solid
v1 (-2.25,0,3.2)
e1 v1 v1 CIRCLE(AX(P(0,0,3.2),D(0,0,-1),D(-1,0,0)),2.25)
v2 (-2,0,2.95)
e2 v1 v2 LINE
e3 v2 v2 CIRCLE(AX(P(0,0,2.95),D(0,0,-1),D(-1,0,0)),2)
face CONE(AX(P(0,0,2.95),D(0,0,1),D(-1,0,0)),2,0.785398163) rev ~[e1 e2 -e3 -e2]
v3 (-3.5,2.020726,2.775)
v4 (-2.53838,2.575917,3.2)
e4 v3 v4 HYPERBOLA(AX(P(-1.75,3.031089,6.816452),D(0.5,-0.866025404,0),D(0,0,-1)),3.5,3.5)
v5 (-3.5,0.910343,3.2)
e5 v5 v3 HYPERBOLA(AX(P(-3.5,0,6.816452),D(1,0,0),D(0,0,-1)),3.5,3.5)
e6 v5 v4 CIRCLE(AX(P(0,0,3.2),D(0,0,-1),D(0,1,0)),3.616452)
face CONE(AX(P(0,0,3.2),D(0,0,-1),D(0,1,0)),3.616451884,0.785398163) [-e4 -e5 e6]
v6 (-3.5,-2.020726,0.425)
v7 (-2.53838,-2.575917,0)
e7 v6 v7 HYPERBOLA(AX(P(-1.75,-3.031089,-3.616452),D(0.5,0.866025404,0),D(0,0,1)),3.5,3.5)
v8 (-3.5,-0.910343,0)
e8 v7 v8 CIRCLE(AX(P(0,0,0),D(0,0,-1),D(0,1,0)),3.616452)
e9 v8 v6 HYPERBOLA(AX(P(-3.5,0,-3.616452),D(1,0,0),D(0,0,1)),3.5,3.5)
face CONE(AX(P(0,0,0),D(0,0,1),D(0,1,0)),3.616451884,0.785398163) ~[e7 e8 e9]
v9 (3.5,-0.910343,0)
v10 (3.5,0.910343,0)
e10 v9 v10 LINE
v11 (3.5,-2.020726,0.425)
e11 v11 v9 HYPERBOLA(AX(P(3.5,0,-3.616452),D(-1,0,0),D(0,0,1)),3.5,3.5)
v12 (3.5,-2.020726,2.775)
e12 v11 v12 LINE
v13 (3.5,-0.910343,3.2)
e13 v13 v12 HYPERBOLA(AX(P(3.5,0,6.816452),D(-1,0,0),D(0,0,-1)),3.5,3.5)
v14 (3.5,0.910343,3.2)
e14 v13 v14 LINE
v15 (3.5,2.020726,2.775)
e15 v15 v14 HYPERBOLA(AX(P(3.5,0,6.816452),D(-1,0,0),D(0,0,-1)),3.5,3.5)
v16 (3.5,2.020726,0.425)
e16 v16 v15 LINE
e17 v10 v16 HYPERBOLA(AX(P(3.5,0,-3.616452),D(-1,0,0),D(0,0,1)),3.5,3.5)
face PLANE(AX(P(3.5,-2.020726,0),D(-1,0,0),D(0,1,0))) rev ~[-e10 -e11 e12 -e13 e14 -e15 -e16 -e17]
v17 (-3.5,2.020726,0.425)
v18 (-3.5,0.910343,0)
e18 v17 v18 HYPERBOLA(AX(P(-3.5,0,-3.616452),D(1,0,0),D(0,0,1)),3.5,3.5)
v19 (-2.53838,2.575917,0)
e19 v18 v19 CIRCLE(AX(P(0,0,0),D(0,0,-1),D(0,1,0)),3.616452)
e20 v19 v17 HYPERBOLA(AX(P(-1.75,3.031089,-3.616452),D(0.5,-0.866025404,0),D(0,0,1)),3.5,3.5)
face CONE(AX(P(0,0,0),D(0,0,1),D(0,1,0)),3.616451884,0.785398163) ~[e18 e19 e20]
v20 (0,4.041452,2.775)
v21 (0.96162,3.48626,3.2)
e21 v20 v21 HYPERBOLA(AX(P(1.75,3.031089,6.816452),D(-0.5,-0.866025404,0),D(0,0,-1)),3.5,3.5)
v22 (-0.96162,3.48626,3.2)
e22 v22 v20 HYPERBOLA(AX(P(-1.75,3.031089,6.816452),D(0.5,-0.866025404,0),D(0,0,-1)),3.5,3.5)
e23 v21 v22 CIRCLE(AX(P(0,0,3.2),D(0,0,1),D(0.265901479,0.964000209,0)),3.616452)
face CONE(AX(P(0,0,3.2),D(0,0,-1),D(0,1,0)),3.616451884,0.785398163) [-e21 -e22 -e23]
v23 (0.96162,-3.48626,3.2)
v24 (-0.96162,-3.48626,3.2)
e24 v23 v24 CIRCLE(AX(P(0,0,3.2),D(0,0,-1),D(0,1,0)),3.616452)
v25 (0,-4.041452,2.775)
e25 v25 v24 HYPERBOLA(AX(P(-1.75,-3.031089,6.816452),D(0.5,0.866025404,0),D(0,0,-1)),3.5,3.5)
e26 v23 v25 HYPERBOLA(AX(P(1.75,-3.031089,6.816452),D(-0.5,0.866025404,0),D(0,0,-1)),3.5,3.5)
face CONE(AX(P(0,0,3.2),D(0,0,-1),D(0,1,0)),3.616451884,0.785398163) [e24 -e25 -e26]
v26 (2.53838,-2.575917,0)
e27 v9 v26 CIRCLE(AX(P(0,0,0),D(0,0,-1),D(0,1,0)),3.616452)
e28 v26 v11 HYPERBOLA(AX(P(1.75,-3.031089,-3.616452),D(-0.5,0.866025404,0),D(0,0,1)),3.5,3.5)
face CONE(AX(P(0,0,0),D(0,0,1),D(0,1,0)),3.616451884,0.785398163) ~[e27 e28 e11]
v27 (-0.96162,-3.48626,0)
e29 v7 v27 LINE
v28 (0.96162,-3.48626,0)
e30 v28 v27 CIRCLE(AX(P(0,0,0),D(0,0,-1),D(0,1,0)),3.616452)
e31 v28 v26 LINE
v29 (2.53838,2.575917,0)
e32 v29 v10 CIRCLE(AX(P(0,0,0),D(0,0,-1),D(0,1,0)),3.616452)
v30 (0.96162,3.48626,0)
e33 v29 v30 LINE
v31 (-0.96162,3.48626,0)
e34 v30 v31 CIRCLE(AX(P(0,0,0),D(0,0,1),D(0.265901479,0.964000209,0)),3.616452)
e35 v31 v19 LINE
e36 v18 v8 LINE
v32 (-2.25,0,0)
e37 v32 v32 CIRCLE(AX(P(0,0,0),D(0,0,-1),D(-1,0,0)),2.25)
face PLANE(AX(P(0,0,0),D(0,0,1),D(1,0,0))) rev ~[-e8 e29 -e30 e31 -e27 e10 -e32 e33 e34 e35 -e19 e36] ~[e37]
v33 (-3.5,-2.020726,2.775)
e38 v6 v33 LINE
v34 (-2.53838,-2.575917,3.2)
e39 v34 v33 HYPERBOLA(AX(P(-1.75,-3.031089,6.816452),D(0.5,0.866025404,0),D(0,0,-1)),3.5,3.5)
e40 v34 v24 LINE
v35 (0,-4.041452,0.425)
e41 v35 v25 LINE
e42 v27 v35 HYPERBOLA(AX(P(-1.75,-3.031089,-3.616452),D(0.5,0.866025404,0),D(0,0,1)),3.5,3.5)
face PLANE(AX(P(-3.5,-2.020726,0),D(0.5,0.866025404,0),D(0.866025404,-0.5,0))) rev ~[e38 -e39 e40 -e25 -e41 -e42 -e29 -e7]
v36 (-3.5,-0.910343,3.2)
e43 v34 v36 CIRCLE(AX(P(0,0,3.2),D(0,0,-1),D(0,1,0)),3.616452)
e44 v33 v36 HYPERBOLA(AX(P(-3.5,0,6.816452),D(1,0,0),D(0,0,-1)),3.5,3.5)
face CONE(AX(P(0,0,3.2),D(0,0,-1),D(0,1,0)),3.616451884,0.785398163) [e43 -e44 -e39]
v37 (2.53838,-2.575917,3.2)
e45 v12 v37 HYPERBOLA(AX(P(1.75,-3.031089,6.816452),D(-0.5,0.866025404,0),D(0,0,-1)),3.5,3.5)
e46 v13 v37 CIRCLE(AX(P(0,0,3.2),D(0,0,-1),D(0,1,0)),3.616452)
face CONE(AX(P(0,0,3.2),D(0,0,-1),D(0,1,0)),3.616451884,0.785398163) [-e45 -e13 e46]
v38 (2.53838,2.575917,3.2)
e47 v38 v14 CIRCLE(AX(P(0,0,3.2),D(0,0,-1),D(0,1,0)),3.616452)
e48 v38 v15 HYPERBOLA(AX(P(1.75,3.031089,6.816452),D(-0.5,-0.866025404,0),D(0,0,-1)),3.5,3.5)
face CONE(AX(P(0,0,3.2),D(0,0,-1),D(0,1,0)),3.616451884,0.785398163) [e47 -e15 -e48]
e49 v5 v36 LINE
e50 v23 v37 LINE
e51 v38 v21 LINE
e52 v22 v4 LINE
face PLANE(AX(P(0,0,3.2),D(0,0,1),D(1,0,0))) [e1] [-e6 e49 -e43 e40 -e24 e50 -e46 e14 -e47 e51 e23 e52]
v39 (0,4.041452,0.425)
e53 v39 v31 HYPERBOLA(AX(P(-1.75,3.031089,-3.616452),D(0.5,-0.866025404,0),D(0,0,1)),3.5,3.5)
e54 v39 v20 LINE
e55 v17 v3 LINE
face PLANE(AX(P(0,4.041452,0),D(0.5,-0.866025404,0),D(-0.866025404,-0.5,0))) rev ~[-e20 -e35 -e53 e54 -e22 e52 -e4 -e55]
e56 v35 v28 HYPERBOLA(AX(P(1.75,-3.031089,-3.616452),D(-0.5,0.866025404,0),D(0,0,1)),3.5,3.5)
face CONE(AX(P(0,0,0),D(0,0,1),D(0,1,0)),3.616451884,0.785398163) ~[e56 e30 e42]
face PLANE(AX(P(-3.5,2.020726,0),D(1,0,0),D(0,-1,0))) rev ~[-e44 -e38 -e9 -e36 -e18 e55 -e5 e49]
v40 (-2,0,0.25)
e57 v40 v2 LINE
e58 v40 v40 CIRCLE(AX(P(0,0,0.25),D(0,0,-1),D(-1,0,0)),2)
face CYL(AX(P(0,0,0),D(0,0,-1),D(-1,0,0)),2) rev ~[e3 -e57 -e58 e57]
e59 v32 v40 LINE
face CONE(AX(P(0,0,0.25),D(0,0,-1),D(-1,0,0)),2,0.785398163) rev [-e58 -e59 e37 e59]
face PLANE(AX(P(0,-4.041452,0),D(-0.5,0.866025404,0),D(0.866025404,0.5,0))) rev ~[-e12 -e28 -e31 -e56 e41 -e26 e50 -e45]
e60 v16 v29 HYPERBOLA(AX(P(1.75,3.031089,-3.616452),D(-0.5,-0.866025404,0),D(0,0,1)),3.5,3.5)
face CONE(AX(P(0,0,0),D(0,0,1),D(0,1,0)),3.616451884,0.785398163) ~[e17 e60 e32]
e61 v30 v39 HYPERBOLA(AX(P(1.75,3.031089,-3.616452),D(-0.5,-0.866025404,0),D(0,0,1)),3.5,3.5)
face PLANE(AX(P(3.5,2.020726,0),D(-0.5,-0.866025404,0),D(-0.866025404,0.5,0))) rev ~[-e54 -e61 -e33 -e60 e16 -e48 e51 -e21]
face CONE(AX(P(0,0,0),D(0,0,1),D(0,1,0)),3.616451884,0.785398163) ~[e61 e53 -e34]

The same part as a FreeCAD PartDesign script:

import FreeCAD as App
import Part
import Sketcher

V = App.Vector
Q = App.Units.Quantity


def edges_at(feature, points):
    """Names of the edges that pass closest to the given points."""
    edges = feature.Shape.Edges
    near = lambda p: min(range(len(edges)), key=lambda i: edges[i].distToShape(Part.Vertex(*p))[0])
    return sorted({f"Edge{near(p) + 1}" for p in points})

doc = App.newDocument("Part")
body = doc.addObject("PartDesign::Body", "Body")

sketch1 = doc.addObject("Sketcher::SketchObject", "Sketch")
body.addObject(sketch1)
sketch1.AttachmentSupport = (doc.XY_Plane, [""])
sketch1.MapMode = "FlatFace"
sketch1.addGeometry([
    Part.LineSegment(V(0, 4, 0), V(-3.5, 2, 0)),
    Part.LineSegment(V(-3.5, 2, 0), V(-3.5, -2, 0)),
    Part.LineSegment(V(-3.5, -2, 0), V(0, -4, 0)),
    Part.LineSegment(V(0, -4, 0), V(3.5, -2, 0)),
    Part.LineSegment(V(3.5, -2, 0), V(3.5, 2, 0)),
    Part.LineSegment(V(3.5, 2, 0), V(0, 4, 0)),
], False)
sketch1.addConstraint([
    Sketcher.Constraint("Coincident", 0, 2, 1, 1),
    Sketcher.Constraint("Coincident", 1, 2, 2, 1),
    Sketcher.Constraint("Coincident", 2, 2, 3, 1),
    Sketcher.Constraint("Coincident", 3, 2, 4, 1),
    Sketcher.Constraint("Coincident", 4, 2, 5, 1),
    Sketcher.Constraint("Coincident", 5, 2, 0, 1),
    Sketcher.Constraint("Vertical", 1),
    Sketcher.Constraint("Vertical", 4),
    Sketcher.Constraint("Symmetric", 0, 2, 3, 2, -1, 1),
    Sketcher.Constraint("Symmetric", 2, 2, 5, 2, -1, 1),
    Sketcher.Constraint("PointOnObject", 2, 2, -2),
    Sketcher.Constraint("Parallel", 2, 5),
    Sketcher.Constraint("Horizontal", 1, 2, 3, 2),
    Sketcher.Constraint("Angle", 0, Q("-150 deg")),
    Sketcher.Constraint("DistanceX", 1, 2, 3, 2, Q("7 mm")),
    Sketcher.Constraint("DistanceY", 1, 2, 1, 1, Q("4.041452 mm")),
])
pad1 = doc.addObject("PartDesign::Pad", "Pad")
body.addObject(pad1)
pad1.Profile = sketch1
pad1.Length = 3.2

sketch2 = doc.addObject("Sketcher::SketchObject", "Sketch001")
body.addObject(sketch2)
sketch2.AttachmentSupport = (doc.YZ_Plane, [""])
sketch2.MapMode = "FlatFace"
sketch2.addGeometry([
    Part.LineSegment(V(4.04, 3.2, 0), V(3.62, 3.2, 0)),
    Part.LineSegment(V(3.62, 3.2, 0), V(4.04, 2.77, 0)),
    Part.LineSegment(V(4.04, 2.77, 0), V(4.04, 3.2, 0)),
    Part.LineSegment(V(4.04, 0, 0), V(4.04, 0.42, 0)),
    Part.LineSegment(V(4.04, 0.42, 0), V(3.62, 0, 0)),
    Part.LineSegment(V(3.62, 0, 0), V(4.04, 0, 0)),
], False)
sketch2.addConstraint([
    Sketcher.Constraint("Coincident", 0, 2, 1, 1),
    Sketcher.Constraint("Coincident", 1, 2, 2, 1),
    Sketcher.Constraint("Coincident", 2, 2, 0, 1),
    Sketcher.Constraint("Coincident", 3, 2, 4, 1),
    Sketcher.Constraint("Coincident", 4, 2, 5, 1),
    Sketcher.Constraint("Coincident", 5, 2, 3, 1),
    Sketcher.Constraint("Horizontal", 0),
    Sketcher.Constraint("Vertical", 2),
    Sketcher.Constraint("Vertical", 3),
    Sketcher.Constraint("Horizontal", 5),
    Sketcher.Constraint("PointOnObject", 4, 2, -1),
    Sketcher.Constraint("Perpendicular", 1, 4),
    Sketcher.Constraint("Vertical", 2, 2, 3, 2),
    Sketcher.Constraint("Vertical", 0, 2, 4, 2),
    Sketcher.Constraint("Equal", 5, 2),
    Sketcher.Constraint("DistanceY", -1, 1, 0, 2, Q("3.2 mm")),
    Sketcher.Constraint("DistanceX", 0, 2, 0, 1, Q("0.425 mm")),
    Sketcher.Constraint("DistanceX", -1, 1, 0, 2, Q("3.616452 mm")),
])
groove = doc.addObject("PartDesign::Groove", "Groove")
body.addObject(groove)
groove.Profile = sketch2
groove.ReferenceAxis = (sketch2, ["V_Axis"])
groove.Angle = 360

sketch3 = doc.addObject("Sketcher::SketchObject", "Sketch002")
body.addObject(sketch3)
sketch3.AttachmentSupport = (doc.XY_Plane, [""])
sketch3.MapMode = "FlatFace"
sketch3.addGeometry(Part.Circle(V(0, 0, 0), V(0, 0, 1), 2), False)
sketch3.addConstraint([
    Sketcher.Constraint("Coincident", 0, 3, -1, 1),
    Sketcher.Constraint("Diameter", 0, Q("4 mm")),
])
pocket1 = doc.addObject("PartDesign::Pocket", "Pocket")
body.addObject(pocket1)
pocket1.Profile = sketch3
pocket1.Type = "ThroughAll"
pocket1.Reversed = True
doc.recompute()

chamfer = doc.addObject("PartDesign::Chamfer", "Chamfer")
body.addObject(chamfer)
chamfer.Base = (pocket1, edges_at(pocket1, [(2, 0, 3.2), (2, 0, 0)]))
chamfer.Size = 0.25

doc.recompute()
